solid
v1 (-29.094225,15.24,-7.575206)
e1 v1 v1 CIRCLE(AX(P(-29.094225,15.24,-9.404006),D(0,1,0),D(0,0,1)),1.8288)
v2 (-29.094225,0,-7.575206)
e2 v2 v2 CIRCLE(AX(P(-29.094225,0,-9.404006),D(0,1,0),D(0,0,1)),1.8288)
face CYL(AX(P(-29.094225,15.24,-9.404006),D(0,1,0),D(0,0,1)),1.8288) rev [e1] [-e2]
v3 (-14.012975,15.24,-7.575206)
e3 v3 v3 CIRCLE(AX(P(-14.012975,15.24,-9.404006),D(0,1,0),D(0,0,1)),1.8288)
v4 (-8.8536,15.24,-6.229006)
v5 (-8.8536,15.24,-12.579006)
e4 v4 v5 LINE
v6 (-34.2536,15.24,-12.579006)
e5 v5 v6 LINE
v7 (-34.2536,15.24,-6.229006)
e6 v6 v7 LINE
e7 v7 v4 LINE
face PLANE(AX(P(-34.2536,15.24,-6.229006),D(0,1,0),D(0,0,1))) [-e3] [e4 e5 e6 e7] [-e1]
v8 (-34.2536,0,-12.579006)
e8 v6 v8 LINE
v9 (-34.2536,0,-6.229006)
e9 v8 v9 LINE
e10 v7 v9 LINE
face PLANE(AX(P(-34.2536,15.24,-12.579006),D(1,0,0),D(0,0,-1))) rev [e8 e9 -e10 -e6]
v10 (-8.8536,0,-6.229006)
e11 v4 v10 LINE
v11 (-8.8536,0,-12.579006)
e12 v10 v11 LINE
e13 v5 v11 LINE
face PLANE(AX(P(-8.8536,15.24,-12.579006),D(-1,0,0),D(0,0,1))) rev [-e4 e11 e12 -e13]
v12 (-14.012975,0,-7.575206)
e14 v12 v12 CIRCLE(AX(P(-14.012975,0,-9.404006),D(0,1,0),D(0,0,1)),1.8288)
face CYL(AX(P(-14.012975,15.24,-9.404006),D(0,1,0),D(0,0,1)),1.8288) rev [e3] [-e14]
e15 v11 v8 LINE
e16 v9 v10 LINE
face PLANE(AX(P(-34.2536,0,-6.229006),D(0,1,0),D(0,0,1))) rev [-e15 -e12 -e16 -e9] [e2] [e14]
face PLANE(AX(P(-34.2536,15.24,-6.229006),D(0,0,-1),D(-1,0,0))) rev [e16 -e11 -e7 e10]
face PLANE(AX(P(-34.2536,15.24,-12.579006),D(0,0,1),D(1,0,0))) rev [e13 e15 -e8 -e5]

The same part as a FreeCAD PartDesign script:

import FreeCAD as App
import Part
import Sketcher
Q = App.Units.Quantity


def add_polygon(sketch, points):
    """Adds a closed chain of lines whose ends are joined by coincident constraints."""
    first, n = sketch.GeometryCount, len(points)
    for a, b in zip(points, points[1:] + points[:1]):
        sketch.addGeometry(Part.LineSegment(App.Vector(*a, 0), App.Vector(*b, 0)), False)
    for i in range(n):
        sketch.addConstraint(Sketcher.Constraint("Coincident", first + i, 2, first + (i + 1) % n, 1))

doc = App.newDocument("Part")
params = doc.addObject("Spreadsheet::Sheet", "Params")
for row, (alias, value) in enumerate([
    ("sketch1_width", "1 in"),
    ("sketch1_height", "0.25 in"),
    ("pad1_length", "0.6 in"),
    ("sketch2_diameter", "0.144 in"),
    ("hole_diameter", "0.144 in"),
    ("hole_depth", "0.6 in"),
], start=1):
    params.set(f"A{row}", alias)
    params.set(f"B{row}", "=" + value)
    params.setAlias(f"B{row}", alias)

body = doc.addObject("PartDesign::Body", "Body")

# Sketch on XZ plane
sketch1 = body.newObject("Sketcher::SketchObject", "Sketch")
sketch1.AttachmentSupport = (doc.getObject("XZ_Plane"), [""])
sketch1.MapMode = "FlatFace"
add_polygon(sketch1, [(-34, -13), (-34, -6), (-9, -6), (-9, -13)])  # lines 0-3
sketch1.addConstraint(Sketcher.Constraint("Vertical", 0))
sketch1.addConstraint(Sketcher.Constraint("Horizontal", 1))
sketch1.addConstraint(Sketcher.Constraint("Vertical", 2))
sketch1.addConstraint(Sketcher.Constraint("Horizontal", 3))
sketch1.addConstraint(Sketcher.Constraint("DistanceX", 1, 1, 1, 2, Q("1 in")))
sketch1.addConstraint(Sketcher.Constraint("DistanceY", 0, 1, 0, 2, Q("0.25 in")))
sketch1.addConstraint(Sketcher.Constraint("DistanceX", 0, 2, -1, 1, Q("34.2536 mm")))
sketch1.addConstraint(Sketcher.Constraint("DistanceY", 0, 2, -1, 1, Q("6.229006 mm")))
sketch1.setExpression("Constraints[8]", "Params.sketch1_width")
sketch1.setExpression("Constraints[9]", "Params.sketch1_height")
pad1 = body.newObject("PartDesign::Pad", "Pad")
pad1.Profile = sketch1
pad1.setExpression("Length", "Params.pad1_length")
pad1.Reversed = True

# Sketch on XZ plane
sketch2 = body.newObject("Sketcher::SketchObject", "Sketch001")
sketch2.AttachmentSupport = (doc.getObject("XZ_Plane"), [""])
sketch2.MapMode = "FlatFace"
sketch2.AttachmentOffset = App.Placement(App.Vector(0, 0, -0.6 * 25.4), App.Rotation())
sketch2.addGeometry(Part.Circle(App.Vector(-29.1, -9.4, 0), App.Vector(0, 0, 1), 1.8), False)
sketch2.addGeometry(Part.Circle(App.Vector(-14, -9.4, 0), App.Vector(0, 0, 1), 1.8), False)
sketch2.addConstraint(Sketcher.Constraint("Equal", 0, 1))
sketch2.addConstraint(Sketcher.Constraint("Horizontal", 0, 3, 1, 3))
sketch2.addConstraint(Sketcher.Constraint("Diameter", 0, Q("0.144 in")))
sketch2.addConstraint(Sketcher.Constraint("DistanceX", 0, 3, 1, 3, Q("0.59375 in")))
sketch2.addConstraint(Sketcher.Constraint("DistanceX", 0, 3, -1, 1, Q("29.094225 mm")))
sketch2.addConstraint(Sketcher.Constraint("DistanceY", 0, 3, -1, 1, Q("9.404006 mm")))
sketch2.setExpression("Constraints[2]", "Params.sketch2_diameter")
doc.recompute()
hole = body.newObject("PartDesign::Hole", "Hole")
hole.Profile = sketch2
hole.ThreadType = "None"
hole.setExpression("Diameter", "Params.hole_diameter")
hole.DepthType = "Dimension"
hole.setExpression("Depth", "Params.hole_depth")
hole.DrillPoint = "Flat"
hole.Reversed = True

doc.recompute()
